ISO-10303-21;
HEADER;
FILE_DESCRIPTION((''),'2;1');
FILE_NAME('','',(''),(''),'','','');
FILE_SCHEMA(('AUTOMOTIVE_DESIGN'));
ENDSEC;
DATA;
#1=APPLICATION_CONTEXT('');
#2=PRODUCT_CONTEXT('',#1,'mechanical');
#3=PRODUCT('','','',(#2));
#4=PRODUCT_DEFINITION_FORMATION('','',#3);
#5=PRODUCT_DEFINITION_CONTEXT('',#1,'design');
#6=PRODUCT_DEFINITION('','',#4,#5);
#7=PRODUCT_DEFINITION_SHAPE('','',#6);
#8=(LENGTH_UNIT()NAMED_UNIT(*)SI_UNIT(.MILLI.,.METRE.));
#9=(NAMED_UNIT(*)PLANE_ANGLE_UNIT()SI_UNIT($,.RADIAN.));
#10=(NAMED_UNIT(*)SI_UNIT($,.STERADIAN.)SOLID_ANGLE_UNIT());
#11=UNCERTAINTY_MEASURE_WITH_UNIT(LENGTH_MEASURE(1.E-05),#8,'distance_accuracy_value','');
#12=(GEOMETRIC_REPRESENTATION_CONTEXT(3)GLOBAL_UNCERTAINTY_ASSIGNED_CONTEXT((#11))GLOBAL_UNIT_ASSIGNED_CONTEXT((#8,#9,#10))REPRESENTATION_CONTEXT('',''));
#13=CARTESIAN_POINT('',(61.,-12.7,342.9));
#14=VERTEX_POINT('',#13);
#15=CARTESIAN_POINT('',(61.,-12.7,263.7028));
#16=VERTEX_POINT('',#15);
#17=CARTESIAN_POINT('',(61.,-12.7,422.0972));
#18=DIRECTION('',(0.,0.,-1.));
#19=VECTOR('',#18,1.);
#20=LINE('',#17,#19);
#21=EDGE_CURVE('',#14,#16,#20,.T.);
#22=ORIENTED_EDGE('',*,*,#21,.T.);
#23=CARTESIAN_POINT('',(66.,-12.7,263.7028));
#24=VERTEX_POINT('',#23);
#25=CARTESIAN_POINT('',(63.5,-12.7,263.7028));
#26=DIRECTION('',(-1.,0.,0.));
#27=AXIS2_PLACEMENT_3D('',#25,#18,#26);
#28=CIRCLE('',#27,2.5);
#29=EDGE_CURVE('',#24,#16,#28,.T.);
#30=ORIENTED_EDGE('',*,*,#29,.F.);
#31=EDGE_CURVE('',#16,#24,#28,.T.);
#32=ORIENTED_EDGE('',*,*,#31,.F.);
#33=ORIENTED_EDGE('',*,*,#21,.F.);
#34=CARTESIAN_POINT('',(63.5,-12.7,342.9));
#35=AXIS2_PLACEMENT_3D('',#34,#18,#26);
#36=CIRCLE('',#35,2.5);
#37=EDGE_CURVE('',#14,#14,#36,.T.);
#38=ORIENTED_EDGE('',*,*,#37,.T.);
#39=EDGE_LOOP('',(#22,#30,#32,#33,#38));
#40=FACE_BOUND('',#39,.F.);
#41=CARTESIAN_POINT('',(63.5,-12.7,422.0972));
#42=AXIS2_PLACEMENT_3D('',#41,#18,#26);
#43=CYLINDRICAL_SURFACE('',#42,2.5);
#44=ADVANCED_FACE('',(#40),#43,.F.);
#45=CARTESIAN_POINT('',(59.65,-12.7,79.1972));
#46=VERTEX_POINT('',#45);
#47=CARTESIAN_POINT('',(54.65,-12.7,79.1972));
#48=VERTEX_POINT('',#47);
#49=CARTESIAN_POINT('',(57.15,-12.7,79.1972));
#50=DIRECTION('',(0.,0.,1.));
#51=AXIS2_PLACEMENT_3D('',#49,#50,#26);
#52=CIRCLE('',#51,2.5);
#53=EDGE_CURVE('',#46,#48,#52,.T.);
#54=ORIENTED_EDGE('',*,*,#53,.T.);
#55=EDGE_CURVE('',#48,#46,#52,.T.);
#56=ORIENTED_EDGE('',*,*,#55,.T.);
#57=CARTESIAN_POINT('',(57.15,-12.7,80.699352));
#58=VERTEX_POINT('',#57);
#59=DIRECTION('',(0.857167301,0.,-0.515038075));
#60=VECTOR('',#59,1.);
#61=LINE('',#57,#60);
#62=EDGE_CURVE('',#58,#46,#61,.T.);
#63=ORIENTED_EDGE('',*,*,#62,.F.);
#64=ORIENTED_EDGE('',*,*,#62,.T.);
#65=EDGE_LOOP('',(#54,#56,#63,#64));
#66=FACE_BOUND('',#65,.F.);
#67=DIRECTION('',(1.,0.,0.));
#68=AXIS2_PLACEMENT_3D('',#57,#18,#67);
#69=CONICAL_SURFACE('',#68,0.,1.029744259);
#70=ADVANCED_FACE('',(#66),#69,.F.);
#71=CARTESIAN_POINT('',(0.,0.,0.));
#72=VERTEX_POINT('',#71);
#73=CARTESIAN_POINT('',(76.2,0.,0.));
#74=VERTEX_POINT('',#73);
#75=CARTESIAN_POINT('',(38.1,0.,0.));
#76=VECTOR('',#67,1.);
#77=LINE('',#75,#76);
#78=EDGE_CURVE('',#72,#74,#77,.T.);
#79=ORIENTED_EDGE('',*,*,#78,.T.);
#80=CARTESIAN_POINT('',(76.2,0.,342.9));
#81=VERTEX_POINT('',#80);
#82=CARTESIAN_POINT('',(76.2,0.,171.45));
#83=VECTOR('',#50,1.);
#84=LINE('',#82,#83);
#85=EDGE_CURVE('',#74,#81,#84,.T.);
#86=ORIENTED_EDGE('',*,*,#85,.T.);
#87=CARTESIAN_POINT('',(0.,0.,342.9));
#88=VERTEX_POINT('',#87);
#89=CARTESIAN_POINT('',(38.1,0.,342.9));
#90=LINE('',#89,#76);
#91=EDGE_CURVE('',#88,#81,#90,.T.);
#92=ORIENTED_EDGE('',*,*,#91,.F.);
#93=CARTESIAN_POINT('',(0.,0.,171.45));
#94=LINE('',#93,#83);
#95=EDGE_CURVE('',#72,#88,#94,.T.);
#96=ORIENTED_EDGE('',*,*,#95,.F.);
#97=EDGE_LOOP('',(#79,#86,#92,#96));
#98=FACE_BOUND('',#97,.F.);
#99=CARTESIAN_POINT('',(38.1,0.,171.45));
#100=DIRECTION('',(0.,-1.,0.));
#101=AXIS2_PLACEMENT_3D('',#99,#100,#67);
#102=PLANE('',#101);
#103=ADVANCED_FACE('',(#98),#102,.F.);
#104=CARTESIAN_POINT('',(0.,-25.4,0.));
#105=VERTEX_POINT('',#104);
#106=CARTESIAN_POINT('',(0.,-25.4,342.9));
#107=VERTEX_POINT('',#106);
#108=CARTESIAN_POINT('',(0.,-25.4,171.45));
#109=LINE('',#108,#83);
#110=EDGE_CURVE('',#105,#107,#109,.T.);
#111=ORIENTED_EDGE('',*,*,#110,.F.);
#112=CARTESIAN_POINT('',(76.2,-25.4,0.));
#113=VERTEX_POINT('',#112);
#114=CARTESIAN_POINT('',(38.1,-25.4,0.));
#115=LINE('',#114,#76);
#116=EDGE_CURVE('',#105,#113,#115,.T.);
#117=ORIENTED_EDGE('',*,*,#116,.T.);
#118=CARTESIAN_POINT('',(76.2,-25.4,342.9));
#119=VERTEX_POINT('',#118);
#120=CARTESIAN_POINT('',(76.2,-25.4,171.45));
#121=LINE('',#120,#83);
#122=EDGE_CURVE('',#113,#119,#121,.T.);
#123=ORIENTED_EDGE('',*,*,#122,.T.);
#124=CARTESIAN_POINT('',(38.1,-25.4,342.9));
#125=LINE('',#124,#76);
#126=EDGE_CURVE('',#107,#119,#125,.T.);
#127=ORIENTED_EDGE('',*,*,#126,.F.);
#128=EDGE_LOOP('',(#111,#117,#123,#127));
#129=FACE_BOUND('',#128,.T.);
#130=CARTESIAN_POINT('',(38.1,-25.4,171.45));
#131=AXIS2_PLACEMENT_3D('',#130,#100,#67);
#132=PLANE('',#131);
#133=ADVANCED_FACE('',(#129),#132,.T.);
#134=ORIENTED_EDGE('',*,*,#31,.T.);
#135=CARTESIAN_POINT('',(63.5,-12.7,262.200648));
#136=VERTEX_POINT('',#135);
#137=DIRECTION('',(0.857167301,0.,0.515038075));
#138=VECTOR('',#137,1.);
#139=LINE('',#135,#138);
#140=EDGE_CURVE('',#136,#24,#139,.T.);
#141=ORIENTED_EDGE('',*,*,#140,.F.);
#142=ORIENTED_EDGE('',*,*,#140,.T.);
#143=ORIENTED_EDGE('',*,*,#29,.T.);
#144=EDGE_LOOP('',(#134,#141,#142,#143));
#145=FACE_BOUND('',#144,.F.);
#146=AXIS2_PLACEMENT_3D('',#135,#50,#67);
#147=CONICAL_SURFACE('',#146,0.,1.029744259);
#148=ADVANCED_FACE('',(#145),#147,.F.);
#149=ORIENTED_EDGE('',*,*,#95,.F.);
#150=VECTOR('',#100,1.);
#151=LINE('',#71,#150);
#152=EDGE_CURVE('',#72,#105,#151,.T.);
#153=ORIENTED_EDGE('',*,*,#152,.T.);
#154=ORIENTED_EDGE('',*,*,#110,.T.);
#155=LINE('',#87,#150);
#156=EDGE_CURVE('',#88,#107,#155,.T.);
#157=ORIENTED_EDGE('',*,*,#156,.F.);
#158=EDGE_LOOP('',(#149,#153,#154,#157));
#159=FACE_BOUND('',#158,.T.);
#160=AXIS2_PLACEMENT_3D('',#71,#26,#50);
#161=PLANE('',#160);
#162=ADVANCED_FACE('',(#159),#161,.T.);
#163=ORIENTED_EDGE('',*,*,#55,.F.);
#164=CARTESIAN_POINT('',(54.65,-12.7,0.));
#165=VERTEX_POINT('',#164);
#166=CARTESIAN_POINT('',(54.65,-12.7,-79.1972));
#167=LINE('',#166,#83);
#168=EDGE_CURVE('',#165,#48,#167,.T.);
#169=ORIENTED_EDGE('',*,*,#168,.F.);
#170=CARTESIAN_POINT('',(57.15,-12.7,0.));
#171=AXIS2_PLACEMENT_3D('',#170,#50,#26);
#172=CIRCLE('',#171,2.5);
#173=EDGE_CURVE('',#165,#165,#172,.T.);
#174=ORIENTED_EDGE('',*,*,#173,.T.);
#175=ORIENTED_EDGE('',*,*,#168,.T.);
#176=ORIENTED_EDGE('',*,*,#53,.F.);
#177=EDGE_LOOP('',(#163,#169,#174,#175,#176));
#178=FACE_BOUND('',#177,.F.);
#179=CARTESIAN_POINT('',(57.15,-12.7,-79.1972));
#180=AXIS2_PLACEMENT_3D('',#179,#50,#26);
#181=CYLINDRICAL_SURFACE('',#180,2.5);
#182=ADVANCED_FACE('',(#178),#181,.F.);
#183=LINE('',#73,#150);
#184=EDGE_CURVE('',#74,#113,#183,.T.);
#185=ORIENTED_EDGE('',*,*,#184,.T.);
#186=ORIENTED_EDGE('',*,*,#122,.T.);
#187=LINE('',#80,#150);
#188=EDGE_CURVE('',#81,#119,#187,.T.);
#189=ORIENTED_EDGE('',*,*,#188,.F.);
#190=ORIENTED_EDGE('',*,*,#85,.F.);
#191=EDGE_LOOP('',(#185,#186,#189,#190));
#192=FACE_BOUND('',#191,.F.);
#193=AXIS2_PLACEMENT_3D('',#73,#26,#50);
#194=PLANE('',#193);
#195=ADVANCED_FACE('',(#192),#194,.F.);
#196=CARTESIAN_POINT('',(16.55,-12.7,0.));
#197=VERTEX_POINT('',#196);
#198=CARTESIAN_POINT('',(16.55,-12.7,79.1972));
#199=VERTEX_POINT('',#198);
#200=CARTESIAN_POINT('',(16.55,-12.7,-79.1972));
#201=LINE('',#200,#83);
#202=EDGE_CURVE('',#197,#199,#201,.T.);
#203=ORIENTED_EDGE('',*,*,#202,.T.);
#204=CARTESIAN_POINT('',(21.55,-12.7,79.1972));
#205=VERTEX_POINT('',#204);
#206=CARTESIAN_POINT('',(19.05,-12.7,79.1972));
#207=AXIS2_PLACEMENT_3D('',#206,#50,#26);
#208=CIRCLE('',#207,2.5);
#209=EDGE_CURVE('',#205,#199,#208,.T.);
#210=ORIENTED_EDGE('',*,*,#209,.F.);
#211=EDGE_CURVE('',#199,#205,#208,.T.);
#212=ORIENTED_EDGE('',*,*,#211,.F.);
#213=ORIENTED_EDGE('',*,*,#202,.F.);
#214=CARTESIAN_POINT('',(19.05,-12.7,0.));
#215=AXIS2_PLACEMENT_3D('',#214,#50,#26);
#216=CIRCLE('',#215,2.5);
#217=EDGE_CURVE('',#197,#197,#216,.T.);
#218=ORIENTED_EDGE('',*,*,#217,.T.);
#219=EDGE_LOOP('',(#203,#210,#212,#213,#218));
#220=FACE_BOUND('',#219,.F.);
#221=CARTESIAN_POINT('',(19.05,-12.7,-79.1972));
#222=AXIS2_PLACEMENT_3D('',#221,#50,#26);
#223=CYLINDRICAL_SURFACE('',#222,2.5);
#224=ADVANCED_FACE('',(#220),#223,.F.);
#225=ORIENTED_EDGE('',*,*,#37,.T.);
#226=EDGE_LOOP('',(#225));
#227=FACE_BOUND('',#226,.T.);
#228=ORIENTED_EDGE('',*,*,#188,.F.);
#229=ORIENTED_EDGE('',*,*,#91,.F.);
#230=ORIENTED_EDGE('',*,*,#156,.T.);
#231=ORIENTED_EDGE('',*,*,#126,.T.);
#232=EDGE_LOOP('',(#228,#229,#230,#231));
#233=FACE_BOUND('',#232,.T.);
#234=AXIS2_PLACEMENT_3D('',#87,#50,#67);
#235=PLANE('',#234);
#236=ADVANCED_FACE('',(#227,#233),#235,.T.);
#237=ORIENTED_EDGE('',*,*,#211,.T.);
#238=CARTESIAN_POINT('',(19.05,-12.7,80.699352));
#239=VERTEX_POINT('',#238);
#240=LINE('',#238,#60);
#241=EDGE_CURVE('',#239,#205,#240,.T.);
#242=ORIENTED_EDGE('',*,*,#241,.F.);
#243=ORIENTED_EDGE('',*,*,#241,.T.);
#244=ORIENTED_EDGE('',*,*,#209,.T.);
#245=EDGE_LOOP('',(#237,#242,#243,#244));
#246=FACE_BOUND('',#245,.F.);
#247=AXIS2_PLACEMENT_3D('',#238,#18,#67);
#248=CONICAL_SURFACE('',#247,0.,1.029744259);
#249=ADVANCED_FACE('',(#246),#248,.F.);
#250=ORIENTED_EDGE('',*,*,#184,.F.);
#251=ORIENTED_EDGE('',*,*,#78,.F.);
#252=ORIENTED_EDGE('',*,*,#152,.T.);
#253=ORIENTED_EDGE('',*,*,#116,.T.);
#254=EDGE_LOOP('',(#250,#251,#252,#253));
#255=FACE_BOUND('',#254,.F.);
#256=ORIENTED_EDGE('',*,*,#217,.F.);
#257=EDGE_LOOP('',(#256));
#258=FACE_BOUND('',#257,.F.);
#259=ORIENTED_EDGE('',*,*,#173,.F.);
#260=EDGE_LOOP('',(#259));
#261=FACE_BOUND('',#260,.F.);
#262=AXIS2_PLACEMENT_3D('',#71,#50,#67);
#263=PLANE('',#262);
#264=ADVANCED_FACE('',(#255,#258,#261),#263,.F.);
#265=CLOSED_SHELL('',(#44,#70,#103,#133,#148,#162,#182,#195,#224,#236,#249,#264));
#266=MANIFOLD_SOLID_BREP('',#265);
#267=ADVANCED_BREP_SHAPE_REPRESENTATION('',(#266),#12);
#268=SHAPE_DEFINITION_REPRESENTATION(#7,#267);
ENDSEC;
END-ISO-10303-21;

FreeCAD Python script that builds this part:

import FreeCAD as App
import Part
import Sketcher
Q = App.Units.Quantity


def add_polygon(sketch, points):
    """Adds a closed chain of lines whose ends are joined by coincident constraints."""
    first, n = sketch.GeometryCount, len(points)
    for a, b in zip(points, points[1:] + points[:1]):
        sketch.addGeometry(Part.LineSegment(App.Vector(*a, 0), App.Vector(*b, 0)), False)
    for i in range(n):
        sketch.addConstraint(Sketcher.Constraint("Coincident", first + i, 2, first + (i + 1) % n, 1))

doc = App.newDocument("Part")
body = doc.addObject("PartDesign::Body", "Body")

sketch1 = body.newObject("Sketcher::SketchObject", "Sketch")
sketch1.AttachmentSupport = (doc.getObject("XZ_Plane"), [""])
sketch1.MapMode = "FlatFace"
add_polygon(sketch1, [(0, 342.9), (0, 0), (76.2, 0), (76.2, 342.9)])
sketch1.addConstraint([
    Sketcher.Constraint("Vertical", 0),
    Sketcher.Constraint("Horizontal", 1),
    Sketcher.Constraint("Vertical", 2),
    Sketcher.Constraint("Horizontal", 3),
    Sketcher.Constraint("Coincident", 0, 2, -1, 1),
    Sketcher.Constraint("DistanceX", 1, 1, 1, 2, Q("3 in")),
    Sketcher.Constraint("DistanceY", 0, 2, 0, 1, Q("13.5 in")),
])
pad1 = body.newObject("PartDesign::Pad", "Pad")
pad1.Profile = sketch1
pad1.Length = Q("1 in")

sketch2 = body.newObject("Sketcher::SketchObject", "Sketch001")
sketch2.AttachmentSupport = (doc.getObject("XY_Plane"), [""])
sketch2.MapMode = "FlatFace"
sketch2.AttachmentOffset = App.Placement(App.Vector(0, 0, 13.5 * 25.4), App.Rotation())
sketch2.addGeometry(Part.Circle(App.Vector(63.5, -12.7, 0), App.Vector(0, 0, 1), 2.5), False)
sketch2.addConstraint([
    Sketcher.Constraint("DistanceX", -1, 1, 0, 3, Q("2.5 in")),
    Sketcher.Constraint("DistanceY", 0, 3, -1, 1, Q("0.5 in")),
    Sketcher.Constraint("Diameter", 0, 5.0),
])
doc.recompute()
hole = body.newObject("PartDesign::Hole", "Hole")
hole.Profile = sketch2
hole.ThreadType = "None"
hole.Diameter = 5
hole.DepthType = "Dimension"
hole.Depth = Q("3.118 in")
hole.DrillPoint = "Angled"
hole.DrillPointAngle = 118

sketch3 = body.newObject("Sketcher::SketchObject", "Sketch002")
sketch3.AttachmentSupport = (doc.getObject("XY_Plane"), [""])
sketch3.MapMode = "FlatFace"
sketch3.addGeometry([
    Part.Circle(App.Vector(57.15, -12.7, 0), App.Vector(0, 0, 1), 2.5),
    Part.Circle(App.Vector(19.05, -12.7, 0), App.Vector(0, 0, 1), 2.5),
], False)
sketch3.addConstraint([
    Sketcher.Constraint("Equal", 0, 1),
    Sketcher.Constraint("Horizontal", 0, 3, 1, 3),
    Sketcher.Constraint("DistanceY", 0, 3, -1, 1, Q("0.5 in")),
    Sketcher.Constraint("DistanceX", 1, 3, 0, 3, Q("1.5 in")),
    Sketcher.Constraint("Diameter", 0, 5.0),
    Sketcher.Constraint("DistanceX", -1, 1, 0, 3, Q("2.25 in")),
])
doc.recompute()
hole2 = body.newObject("PartDesign::Hole", "Hole001")
hole2.Profile = sketch3
hole2.ThreadType = "None"
hole2.Diameter = 5
hole2.DepthType = "Dimension"
hole2.Depth = Q("3.118 in")
hole2.DrillPoint = "Angled"
hole2.DrillPointAngle = 118
hole2.Reversed = True

doc.recompute()
